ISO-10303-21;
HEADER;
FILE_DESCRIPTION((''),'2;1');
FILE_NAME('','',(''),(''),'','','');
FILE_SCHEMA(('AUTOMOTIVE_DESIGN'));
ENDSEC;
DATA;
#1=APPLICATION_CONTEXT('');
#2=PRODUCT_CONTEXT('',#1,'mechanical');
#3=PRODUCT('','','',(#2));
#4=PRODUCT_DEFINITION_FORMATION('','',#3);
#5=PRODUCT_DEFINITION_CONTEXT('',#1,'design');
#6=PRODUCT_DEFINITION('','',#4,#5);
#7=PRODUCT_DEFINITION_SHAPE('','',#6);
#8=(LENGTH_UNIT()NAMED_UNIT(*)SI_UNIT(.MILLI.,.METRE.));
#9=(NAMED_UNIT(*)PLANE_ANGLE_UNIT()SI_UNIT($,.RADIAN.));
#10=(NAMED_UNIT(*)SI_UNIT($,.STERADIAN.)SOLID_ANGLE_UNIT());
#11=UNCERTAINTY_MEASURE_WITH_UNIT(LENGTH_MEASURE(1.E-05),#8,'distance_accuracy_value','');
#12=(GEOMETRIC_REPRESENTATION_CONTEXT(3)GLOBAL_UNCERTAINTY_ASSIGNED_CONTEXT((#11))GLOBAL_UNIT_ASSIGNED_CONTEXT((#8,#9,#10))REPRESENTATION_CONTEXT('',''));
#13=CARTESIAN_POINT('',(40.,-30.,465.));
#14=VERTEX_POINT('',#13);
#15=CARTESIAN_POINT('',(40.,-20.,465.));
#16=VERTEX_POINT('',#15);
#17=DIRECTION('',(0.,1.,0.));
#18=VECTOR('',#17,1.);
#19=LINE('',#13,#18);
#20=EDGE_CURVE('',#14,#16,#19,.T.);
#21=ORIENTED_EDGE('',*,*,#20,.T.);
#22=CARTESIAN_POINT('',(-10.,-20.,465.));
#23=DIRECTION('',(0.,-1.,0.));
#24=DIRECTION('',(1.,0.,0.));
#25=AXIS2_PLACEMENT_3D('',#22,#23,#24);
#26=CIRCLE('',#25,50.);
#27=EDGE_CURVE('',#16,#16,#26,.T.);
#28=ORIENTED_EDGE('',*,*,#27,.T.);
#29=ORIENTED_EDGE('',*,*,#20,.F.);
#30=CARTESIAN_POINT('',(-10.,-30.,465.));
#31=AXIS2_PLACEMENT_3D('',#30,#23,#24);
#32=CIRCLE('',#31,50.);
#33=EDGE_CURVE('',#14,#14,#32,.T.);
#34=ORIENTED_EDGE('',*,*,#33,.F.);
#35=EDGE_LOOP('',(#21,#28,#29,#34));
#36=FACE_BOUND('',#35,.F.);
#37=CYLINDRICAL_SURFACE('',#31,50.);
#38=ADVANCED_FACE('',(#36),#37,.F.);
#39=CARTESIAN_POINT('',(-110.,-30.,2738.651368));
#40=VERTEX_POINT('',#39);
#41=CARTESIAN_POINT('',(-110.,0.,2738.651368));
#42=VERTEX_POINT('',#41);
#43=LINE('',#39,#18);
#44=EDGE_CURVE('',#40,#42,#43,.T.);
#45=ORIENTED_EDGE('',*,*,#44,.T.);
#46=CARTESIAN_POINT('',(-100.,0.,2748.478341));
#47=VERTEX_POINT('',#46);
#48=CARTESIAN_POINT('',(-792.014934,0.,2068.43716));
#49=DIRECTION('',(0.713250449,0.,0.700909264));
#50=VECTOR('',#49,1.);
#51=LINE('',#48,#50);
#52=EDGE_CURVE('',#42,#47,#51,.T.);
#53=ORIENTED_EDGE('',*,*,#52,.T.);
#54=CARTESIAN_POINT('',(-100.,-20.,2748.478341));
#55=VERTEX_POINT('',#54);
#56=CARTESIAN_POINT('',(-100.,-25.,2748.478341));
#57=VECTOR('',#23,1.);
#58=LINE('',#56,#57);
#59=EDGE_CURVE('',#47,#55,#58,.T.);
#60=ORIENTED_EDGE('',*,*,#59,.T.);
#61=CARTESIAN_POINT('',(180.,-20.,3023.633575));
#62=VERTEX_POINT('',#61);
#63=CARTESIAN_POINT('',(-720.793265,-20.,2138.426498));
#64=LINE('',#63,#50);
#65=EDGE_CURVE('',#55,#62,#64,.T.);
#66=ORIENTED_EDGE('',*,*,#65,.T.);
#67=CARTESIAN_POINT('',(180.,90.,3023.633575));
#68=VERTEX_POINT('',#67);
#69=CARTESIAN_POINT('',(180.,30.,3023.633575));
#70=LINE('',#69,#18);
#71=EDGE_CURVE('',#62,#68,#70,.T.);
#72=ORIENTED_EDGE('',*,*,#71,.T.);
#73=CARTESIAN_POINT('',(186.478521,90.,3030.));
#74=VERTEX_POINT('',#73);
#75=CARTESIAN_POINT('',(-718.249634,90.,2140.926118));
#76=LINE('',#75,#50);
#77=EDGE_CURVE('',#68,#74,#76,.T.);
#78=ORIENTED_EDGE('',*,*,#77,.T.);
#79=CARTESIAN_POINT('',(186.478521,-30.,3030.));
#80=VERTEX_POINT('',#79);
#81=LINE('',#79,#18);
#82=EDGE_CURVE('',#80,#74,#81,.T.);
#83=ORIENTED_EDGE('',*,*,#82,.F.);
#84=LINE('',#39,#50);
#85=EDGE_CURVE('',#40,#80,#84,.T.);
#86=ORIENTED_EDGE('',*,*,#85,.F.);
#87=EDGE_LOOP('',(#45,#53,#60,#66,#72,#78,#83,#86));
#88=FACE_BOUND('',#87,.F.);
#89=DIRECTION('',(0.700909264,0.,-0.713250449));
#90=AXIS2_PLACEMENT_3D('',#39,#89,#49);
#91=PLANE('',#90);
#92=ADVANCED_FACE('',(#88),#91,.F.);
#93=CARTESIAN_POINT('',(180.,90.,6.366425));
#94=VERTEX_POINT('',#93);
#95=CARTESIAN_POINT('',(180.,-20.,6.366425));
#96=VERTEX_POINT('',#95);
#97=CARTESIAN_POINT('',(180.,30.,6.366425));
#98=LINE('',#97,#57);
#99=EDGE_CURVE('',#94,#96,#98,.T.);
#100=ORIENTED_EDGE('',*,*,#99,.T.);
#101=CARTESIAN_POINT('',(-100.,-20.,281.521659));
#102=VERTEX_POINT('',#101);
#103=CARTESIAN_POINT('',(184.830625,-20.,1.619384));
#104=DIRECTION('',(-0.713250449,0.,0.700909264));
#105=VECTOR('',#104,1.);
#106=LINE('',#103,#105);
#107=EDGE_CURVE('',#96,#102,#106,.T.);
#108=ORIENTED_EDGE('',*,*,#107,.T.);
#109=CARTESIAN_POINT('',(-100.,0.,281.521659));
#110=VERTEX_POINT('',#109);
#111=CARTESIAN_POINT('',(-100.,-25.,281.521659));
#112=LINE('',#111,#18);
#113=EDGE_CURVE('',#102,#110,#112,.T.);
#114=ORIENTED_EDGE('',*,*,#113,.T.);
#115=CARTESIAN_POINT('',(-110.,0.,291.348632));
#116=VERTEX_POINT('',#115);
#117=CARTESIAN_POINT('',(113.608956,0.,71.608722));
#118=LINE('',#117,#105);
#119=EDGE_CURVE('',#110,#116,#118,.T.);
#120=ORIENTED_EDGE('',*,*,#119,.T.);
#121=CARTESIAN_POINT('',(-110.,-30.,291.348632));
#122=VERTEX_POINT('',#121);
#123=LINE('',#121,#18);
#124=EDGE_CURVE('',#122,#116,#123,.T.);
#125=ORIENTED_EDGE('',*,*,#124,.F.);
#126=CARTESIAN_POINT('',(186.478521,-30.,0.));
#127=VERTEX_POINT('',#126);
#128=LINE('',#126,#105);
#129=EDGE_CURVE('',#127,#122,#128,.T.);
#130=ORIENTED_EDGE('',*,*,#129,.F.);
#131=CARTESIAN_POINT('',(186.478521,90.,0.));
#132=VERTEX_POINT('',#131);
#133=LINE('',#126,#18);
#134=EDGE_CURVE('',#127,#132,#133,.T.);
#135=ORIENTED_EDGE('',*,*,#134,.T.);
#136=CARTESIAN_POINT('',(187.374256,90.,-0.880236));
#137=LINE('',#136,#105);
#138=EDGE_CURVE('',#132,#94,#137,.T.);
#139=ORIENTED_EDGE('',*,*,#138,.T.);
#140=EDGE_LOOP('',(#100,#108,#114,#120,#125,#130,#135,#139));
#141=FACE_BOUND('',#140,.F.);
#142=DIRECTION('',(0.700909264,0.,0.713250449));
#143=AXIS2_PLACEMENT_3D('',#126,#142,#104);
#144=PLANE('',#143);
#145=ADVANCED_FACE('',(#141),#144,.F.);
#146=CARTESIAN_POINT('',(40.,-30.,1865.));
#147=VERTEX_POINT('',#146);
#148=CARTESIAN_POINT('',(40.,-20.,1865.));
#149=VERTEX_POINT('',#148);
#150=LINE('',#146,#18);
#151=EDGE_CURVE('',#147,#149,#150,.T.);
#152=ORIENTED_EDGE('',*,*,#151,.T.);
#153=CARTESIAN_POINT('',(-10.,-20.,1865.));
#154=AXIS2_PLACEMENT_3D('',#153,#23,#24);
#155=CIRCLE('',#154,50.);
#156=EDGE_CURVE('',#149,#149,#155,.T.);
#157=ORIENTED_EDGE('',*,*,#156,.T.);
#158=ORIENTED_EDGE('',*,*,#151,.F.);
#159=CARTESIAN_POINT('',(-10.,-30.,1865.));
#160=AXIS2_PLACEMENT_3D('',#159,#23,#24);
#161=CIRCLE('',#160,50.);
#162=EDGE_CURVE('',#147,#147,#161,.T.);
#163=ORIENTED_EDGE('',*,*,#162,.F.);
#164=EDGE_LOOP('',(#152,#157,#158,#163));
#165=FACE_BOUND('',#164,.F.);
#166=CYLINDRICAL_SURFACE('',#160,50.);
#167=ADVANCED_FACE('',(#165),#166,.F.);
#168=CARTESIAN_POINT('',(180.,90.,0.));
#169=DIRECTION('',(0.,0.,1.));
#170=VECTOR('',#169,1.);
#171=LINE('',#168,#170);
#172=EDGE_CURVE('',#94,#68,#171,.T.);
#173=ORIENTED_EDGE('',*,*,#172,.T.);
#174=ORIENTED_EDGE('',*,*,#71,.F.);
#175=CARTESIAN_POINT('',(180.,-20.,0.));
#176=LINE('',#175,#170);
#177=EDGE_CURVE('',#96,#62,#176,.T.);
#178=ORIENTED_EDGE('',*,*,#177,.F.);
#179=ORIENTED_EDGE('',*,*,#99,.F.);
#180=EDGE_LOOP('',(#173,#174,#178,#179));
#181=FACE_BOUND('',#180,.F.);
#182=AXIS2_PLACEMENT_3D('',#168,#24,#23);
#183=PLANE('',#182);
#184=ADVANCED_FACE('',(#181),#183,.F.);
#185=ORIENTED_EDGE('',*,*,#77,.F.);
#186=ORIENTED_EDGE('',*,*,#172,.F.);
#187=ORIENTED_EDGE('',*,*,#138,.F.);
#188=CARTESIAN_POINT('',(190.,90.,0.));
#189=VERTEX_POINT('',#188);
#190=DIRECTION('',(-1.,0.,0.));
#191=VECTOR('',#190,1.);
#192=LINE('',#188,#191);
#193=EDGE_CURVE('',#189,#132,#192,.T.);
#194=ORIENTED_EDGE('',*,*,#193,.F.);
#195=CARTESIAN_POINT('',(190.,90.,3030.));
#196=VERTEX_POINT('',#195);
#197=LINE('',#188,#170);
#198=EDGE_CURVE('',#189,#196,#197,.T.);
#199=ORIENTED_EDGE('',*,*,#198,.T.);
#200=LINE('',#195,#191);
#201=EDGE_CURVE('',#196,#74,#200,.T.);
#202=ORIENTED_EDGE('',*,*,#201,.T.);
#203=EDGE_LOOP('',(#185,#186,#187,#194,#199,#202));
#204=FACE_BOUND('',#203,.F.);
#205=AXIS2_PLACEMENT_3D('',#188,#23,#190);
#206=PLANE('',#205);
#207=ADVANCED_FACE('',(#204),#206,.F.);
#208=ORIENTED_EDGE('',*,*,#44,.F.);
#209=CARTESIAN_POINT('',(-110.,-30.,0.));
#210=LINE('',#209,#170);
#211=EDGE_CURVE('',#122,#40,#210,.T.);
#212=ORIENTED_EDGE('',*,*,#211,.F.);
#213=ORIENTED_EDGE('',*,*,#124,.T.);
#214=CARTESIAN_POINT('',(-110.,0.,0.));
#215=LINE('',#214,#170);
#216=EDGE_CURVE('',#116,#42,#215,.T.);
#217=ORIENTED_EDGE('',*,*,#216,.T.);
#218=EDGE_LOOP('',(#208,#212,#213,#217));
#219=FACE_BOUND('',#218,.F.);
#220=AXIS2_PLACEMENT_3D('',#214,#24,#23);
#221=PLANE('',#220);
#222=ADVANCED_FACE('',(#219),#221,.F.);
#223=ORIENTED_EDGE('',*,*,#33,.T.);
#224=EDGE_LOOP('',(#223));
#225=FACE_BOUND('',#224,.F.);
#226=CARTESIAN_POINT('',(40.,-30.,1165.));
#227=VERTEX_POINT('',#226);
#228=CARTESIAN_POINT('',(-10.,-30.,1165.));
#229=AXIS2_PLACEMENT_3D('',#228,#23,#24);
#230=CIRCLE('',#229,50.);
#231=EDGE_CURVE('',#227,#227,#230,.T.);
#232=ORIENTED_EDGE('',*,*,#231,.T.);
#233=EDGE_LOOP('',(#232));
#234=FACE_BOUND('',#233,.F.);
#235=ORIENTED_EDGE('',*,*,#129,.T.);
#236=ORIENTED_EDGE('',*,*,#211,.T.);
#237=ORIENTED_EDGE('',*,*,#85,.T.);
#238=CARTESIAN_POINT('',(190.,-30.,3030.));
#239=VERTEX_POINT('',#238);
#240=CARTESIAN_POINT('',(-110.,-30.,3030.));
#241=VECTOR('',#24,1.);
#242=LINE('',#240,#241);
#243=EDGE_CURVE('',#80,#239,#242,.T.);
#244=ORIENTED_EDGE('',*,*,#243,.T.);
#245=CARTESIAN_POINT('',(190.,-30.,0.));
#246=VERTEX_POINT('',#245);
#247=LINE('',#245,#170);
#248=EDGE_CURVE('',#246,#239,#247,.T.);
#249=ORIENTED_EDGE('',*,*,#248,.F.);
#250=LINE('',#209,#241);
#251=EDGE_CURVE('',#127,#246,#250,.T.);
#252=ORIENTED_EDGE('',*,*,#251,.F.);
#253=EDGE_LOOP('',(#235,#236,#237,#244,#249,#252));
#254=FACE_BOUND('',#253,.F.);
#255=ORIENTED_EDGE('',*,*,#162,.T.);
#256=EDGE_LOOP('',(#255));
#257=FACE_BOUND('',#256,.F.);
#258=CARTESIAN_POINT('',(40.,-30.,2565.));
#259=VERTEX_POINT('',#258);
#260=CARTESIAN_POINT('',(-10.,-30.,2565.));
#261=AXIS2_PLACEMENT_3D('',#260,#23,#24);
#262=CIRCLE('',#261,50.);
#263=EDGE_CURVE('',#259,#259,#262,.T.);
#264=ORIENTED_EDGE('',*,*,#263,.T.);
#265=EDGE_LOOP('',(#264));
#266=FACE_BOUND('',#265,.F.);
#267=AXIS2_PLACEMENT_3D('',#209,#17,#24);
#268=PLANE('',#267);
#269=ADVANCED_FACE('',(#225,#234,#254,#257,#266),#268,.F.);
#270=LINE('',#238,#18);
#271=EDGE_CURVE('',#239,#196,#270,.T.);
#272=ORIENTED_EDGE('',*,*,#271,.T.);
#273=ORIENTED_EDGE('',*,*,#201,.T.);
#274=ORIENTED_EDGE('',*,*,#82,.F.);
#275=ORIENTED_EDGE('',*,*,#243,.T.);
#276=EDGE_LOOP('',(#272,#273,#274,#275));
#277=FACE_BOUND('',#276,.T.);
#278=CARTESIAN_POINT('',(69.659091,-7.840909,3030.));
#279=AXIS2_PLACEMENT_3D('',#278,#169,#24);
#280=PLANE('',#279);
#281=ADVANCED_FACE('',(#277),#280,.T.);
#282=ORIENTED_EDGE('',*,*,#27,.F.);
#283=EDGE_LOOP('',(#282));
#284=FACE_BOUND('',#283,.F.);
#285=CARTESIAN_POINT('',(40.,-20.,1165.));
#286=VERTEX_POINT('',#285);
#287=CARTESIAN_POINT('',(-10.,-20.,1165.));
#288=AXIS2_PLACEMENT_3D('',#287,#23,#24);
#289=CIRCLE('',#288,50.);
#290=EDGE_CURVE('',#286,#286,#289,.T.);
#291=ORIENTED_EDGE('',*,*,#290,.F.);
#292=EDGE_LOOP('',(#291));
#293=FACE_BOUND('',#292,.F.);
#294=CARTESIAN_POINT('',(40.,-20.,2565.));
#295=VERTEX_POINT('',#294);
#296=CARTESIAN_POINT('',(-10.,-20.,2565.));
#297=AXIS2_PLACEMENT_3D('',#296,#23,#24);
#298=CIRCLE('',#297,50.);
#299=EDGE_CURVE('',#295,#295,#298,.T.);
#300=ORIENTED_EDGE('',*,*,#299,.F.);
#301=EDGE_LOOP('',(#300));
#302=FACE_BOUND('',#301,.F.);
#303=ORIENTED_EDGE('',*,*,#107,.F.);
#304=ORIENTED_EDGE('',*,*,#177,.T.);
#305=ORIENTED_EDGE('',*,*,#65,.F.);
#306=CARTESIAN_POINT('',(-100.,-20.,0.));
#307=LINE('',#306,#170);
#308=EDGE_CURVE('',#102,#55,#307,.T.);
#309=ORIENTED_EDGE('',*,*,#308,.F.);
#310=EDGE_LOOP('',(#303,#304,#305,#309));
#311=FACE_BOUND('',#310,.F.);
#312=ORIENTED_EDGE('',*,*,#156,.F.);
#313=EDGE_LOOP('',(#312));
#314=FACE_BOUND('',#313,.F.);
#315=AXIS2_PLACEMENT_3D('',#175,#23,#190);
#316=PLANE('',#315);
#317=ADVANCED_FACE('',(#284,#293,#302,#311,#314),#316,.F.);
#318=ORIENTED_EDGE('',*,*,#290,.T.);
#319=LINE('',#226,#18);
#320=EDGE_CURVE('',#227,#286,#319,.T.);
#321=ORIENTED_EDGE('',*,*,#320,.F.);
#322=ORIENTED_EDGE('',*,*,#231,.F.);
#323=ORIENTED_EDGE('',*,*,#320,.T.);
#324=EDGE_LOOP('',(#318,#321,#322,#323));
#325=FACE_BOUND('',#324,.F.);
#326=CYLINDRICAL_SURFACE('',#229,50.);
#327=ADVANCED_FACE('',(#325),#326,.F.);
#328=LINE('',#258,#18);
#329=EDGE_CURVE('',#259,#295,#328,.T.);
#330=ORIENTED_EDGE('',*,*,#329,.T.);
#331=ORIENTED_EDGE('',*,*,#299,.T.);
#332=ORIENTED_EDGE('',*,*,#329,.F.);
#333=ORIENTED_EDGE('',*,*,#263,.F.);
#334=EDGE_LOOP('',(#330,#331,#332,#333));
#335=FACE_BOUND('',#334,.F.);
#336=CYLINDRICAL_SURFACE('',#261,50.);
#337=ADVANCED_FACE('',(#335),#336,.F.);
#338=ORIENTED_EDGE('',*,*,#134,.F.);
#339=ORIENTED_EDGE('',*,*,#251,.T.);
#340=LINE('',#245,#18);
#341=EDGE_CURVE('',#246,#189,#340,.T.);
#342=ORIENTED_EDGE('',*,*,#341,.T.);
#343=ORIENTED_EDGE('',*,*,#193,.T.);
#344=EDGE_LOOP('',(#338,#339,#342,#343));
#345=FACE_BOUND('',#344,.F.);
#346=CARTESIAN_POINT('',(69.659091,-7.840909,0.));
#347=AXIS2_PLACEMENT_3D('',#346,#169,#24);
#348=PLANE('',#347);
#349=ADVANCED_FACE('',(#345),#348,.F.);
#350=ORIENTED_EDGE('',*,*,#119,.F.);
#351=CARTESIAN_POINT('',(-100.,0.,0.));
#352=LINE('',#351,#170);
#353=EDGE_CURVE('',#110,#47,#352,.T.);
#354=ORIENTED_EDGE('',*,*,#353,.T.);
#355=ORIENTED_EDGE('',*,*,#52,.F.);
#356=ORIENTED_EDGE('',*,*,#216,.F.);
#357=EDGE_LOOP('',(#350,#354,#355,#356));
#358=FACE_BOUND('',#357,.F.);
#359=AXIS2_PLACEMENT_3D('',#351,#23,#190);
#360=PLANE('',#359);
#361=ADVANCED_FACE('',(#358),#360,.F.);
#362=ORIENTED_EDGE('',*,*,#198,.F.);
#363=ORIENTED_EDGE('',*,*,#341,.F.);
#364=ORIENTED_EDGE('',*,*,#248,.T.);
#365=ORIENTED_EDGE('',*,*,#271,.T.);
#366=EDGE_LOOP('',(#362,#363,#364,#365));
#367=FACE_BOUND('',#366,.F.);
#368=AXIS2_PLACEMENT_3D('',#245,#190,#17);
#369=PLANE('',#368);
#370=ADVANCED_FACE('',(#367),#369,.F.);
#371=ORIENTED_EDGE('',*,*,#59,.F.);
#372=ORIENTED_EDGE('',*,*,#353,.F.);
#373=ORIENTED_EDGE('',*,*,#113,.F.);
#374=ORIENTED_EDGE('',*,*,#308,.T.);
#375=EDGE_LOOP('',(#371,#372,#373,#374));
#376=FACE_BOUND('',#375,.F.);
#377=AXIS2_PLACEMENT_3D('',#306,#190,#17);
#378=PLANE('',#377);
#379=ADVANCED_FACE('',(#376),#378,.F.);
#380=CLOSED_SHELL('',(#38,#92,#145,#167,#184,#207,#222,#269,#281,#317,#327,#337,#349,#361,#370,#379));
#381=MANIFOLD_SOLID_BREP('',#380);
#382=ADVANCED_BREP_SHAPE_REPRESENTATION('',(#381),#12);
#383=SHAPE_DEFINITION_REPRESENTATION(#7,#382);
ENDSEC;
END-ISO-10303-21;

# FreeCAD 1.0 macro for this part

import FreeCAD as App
import Part
import Sketcher
from FreeCAD import Vector
Q = App.Units.Quantity


def add_polygon(sketch, points):
    """Adds a closed chain of lines whose ends are joined by coincident constraints."""
    first, n = sketch.GeometryCount, len(points)
    for a, b in zip(points, points[1:] + points[:1]):
        sketch.addGeometry(Part.LineSegment(App.Vector(*a, 0), App.Vector(*b, 0)), False)
    for i in range(n):
        sketch.addConstraint(Sketcher.Constraint("Coincident", first + i, 2, first + (i + 1) % n, 1))

doc = App.newDocument("Part")
body = doc.addObject("PartDesign::Body", "Body")

sketch1 = doc.addObject("Sketcher::SketchObject", "Sketch")
body.addObject(sketch1)
sketch1.AttachmentSupport = (doc.XY_Plane, [""])
sketch1.MapMode = "FlatFace"
add_polygon(sketch1, [(-100, 0), (-110, 0), (-110, -30), (190, -30), (190, 90), (180, 90), (180, -20), (-100, -20)])
sketch1.addConstraint([
    Sketcher.Constraint("Horizontal", 0),
    Sketcher.Constraint("Vertical", 1),
    Sketcher.Constraint("Horizontal", 2),
    Sketcher.Constraint("Vertical", 3),
    Sketcher.Constraint("Horizontal", 4),
    Sketcher.Constraint("Vertical", 5),
    Sketcher.Constraint("Horizontal", 6),
    Sketcher.Constraint("Vertical", 7),
    Sketcher.Constraint("PointOnObject", 0, 2, -1),
    Sketcher.Constraint("Equal", 0, 4),
    Sketcher.Constraint("DistanceX", 0, 2, 0, 1, 10.0),
    Sketcher.Constraint("DistanceX", 2, 1, 2, 2, 300.0),
    Sketcher.Constraint("DistanceY", 1, 2, 1, 1, 30.0),
    Sketcher.Constraint("DistanceY", 3, 1, 3, 2, 120.0),
    Sketcher.Constraint("DistanceY", 5, 2, 5, 1, 110.0),
    Sketcher.Constraint("DistanceX", 0, 2, -1, 1, 110.0),
])
pad1 = doc.addObject("PartDesign::Pad", "Pad")
body.addObject(pad1)
pad1.Profile = sketch1
pad1.Length = 3030

sketch2 = doc.addObject("Sketcher::SketchObject", "Sketch001")
body.addObject(sketch2)
sketch2.AttachmentSupport = (doc.XZ_Plane, [""])
sketch2.MapMode = "FlatFace"
sketch2.AttachmentOffset = App.Placement(Vector(0, 0, 30), App.Rotation())
add_polygon(sketch2, [(186, 0), (-110, 291), (-110, 0)])
add_polygon(sketch2, [(-110, 3030), (-110, 2739), (186, 3030)])
sketch2.addConstraint([
    Sketcher.Constraint("Vertical", 1),
    Sketcher.Constraint("Horizontal", 2),
    Sketcher.Constraint("Vertical", 3),
    Sketcher.Constraint("Horizontal", 5),
    Sketcher.Constraint("PointOnObject", 1, 2, -1),
    Sketcher.Constraint("Vertical", 1, 2, 3, 2),
    Sketcher.Constraint("Vertical", 2, 2, 4, 2),
    Sketcher.Constraint("Equal", 1, 3),
    Sketcher.Constraint("DistanceX", 0, 2, -1, 1, 110.0),
    Sketcher.Constraint("DistanceY", -1, 1, 4, 2, 3030.0),
    Sketcher.Constraint("Angle", 0, Q("135.5 deg")),
    Sketcher.Constraint("DistanceX", 2, 1, 2, 2, 296.478521),
])
pocket1 = doc.addObject("PartDesign::Pocket", "Pocket")
body.addObject(pocket1)
pocket1.Profile = sketch2
pocket1.Length = 200

sketch3 = doc.addObject("Sketcher::SketchObject", "Sketch002")
body.addObject(sketch3)
sketch3.AttachmentSupport = (doc.XZ_Plane, [""])
sketch3.MapMode = "FlatFace"
sketch3.AttachmentOffset = App.Placement(Vector(0, 0, 30), App.Rotation())
sketch3.addGeometry([
    Part.Circle(Vector(-10, 465, 0), Vector(0, 0, 1), 50),
    Part.Circle(Vector(-10, 1165, 0), Vector(0, 0, 1), 50),
    Part.Circle(Vector(-10, 1865, 0), Vector(0, 0, 1), 50),
    Part.Circle(Vector(-10, 2565, 0), Vector(0, 0, 1), 50),
], False)
sketch3.addConstraint([
    Sketcher.Constraint("Equal", 0, 1),
    Sketcher.Constraint("Equal", 1, 2),
    Sketcher.Constraint("Equal", 2, 3),
    Sketcher.Constraint("Vertical", 0, 3, 1, 3),
    Sketcher.Constraint("Vertical", 1, 3, 2, 3),
    Sketcher.Constraint("Vertical", 2, 3, 3, 3),
    Sketcher.Constraint("Diameter", 0, 100.0),
    Sketcher.Constraint("DistanceX", 0, 3, -1, 1, 10.0),
    Sketcher.Constraint("DistanceY", -1, 1, 0, 3, 465.0),
    Sketcher.Constraint("DistanceY", -1, 1, 1, 3, 1165.0),
    Sketcher.Constraint("DistanceY", -1, 1, 2, 3, 1865.0),
    Sketcher.Constraint("DistanceY", -1, 1, 3, 3, 2565.0),
])
pocket2 = doc.addObject("PartDesign::Pocket", "Pocket001")
body.addObject(pocket2)
pocket2.Profile = sketch3
pocket2.Type = "ThroughAll"

doc.recompute()
